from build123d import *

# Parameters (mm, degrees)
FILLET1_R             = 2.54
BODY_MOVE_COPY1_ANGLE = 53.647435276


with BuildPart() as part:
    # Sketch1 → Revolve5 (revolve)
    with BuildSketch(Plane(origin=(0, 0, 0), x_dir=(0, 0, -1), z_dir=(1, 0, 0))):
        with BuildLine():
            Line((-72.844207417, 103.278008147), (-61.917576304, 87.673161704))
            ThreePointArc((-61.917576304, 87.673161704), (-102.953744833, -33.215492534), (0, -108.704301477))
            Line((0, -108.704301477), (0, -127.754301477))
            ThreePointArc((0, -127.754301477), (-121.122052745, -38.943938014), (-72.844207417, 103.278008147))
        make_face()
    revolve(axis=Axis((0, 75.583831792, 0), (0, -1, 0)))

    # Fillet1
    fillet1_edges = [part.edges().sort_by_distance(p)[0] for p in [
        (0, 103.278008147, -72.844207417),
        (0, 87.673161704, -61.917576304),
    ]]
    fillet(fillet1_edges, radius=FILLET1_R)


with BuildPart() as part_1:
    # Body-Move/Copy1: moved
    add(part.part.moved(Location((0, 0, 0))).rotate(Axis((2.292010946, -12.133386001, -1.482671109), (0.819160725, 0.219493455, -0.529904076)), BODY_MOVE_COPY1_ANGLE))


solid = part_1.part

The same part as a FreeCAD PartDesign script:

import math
import FreeCAD as App
import Part
import Sketcher

V = App.Vector
Q = App.Units.Quantity


def edges_at(feature, points):
    """Names of the edges that pass closest to the given points."""
    edges = feature.Shape.Edges
    near = lambda p: min(range(len(edges)), key=lambda i: edges[i].distToShape(Part.Vertex(*p))[0])
    return sorted({f"Edge{near(p) + 1}" for p in points})

doc = App.newDocument("Part")
body = doc.addObject("PartDesign::Body", "Body")

# Sketch on YZ plane
sketch1 = doc.addObject("Sketcher::SketchObject", "Sketch")
body.addObject(sketch1)
sketch1.AttachmentSupport = (doc.YZ_Plane, [""])
sketch1.MapMode = "FlatFace"
sketch1.addGeometry(Part.LineSegment(V(88, 62, 0), V(103, 73, 0)), False)
sketch1.addGeometry(Part.ArcOfCircle(Part.Circle(V(-1, 0, 0), V(0, 0, 1), 127), math.radians(35), math.radians(180)), False)
sketch1.addGeometry(Part.LineSegment(V(-128, 0, 0), V(-109, 0, 0)), False)
sketch1.addGeometry(Part.ArcOfCircle(Part.Circle(V(-1, 0, 0), V(0, 0, 1), 108), math.radians(35), math.radians(180)), False)
sketch1.addConstraint(Sketcher.Constraint("Coincident", 0, 2, 1, 1))
sketch1.addConstraint(Sketcher.Constraint("Coincident", 1, 2, 2, 1))
sketch1.addConstraint(Sketcher.Constraint("Coincident", 2, 2, 3, 2))
sketch1.addConstraint(Sketcher.Constraint("Coincident", 3, 1, 0, 1))
sketch1.addConstraint(Sketcher.Constraint("Horizontal", 2))
sketch1.addConstraint(Sketcher.Constraint("Coincident", 3, 3, 1, 3))
sketch1.addConstraint(Sketcher.Constraint("PointOnObject", 1, 3, -1))
sketch1.addConstraint(Sketcher.Constraint("PointOnObject", 1, 2, -1))
sketch1.addConstraint(Sketcher.Constraint("Radius", 1, Q("5 in")))
sketch1.addConstraint(Sketcher.Constraint("Radius", 3, Q("4.25 in")))
sketch1.addConstraint(Sketcher.Constraint("Angle", 0, Q("35 deg")))
sketch1.addConstraint(Sketcher.Constraint("DistanceY", -1, 1, 3, 1, Q("2.4376999 in")))
sketch1.addConstraint(Sketcher.Constraint("DistanceX", 1, 3, -1, 1, Q("0.754301 mm")))
revolution = doc.addObject("PartDesign::Revolution", "Revolution")
body.addObject(revolution)
revolution.Profile = sketch1
revolution.ReferenceAxis = (sketch1, ["H_Axis"])
revolution.Angle = 360
doc.recompute()

fillet = doc.addObject("PartDesign::Fillet", "Fillet")
body.addObject(fillet)
fillet.Base = (revolution, edges_at(revolution, [(0, 103.278, -72.844), (0, 87.673, -61.918)]))
fillet.Radius = Q("0.1 in")
body2 = doc.addObject("PartDesign::Body", "Body001")
doc.recompute()

body.Placement = App.Placement(V(6.373764, -4.941293, 7.806235), App.Rotation(V(0.819160725, 0.219493455, -0.529904076), 53.647435))
boolean = doc.addObject("PartDesign::Boolean", "Boolean")
body2.addObject(boolean)
boolean.Type = "Fuse"
boolean.addObjects([body])

doc.recompute()
